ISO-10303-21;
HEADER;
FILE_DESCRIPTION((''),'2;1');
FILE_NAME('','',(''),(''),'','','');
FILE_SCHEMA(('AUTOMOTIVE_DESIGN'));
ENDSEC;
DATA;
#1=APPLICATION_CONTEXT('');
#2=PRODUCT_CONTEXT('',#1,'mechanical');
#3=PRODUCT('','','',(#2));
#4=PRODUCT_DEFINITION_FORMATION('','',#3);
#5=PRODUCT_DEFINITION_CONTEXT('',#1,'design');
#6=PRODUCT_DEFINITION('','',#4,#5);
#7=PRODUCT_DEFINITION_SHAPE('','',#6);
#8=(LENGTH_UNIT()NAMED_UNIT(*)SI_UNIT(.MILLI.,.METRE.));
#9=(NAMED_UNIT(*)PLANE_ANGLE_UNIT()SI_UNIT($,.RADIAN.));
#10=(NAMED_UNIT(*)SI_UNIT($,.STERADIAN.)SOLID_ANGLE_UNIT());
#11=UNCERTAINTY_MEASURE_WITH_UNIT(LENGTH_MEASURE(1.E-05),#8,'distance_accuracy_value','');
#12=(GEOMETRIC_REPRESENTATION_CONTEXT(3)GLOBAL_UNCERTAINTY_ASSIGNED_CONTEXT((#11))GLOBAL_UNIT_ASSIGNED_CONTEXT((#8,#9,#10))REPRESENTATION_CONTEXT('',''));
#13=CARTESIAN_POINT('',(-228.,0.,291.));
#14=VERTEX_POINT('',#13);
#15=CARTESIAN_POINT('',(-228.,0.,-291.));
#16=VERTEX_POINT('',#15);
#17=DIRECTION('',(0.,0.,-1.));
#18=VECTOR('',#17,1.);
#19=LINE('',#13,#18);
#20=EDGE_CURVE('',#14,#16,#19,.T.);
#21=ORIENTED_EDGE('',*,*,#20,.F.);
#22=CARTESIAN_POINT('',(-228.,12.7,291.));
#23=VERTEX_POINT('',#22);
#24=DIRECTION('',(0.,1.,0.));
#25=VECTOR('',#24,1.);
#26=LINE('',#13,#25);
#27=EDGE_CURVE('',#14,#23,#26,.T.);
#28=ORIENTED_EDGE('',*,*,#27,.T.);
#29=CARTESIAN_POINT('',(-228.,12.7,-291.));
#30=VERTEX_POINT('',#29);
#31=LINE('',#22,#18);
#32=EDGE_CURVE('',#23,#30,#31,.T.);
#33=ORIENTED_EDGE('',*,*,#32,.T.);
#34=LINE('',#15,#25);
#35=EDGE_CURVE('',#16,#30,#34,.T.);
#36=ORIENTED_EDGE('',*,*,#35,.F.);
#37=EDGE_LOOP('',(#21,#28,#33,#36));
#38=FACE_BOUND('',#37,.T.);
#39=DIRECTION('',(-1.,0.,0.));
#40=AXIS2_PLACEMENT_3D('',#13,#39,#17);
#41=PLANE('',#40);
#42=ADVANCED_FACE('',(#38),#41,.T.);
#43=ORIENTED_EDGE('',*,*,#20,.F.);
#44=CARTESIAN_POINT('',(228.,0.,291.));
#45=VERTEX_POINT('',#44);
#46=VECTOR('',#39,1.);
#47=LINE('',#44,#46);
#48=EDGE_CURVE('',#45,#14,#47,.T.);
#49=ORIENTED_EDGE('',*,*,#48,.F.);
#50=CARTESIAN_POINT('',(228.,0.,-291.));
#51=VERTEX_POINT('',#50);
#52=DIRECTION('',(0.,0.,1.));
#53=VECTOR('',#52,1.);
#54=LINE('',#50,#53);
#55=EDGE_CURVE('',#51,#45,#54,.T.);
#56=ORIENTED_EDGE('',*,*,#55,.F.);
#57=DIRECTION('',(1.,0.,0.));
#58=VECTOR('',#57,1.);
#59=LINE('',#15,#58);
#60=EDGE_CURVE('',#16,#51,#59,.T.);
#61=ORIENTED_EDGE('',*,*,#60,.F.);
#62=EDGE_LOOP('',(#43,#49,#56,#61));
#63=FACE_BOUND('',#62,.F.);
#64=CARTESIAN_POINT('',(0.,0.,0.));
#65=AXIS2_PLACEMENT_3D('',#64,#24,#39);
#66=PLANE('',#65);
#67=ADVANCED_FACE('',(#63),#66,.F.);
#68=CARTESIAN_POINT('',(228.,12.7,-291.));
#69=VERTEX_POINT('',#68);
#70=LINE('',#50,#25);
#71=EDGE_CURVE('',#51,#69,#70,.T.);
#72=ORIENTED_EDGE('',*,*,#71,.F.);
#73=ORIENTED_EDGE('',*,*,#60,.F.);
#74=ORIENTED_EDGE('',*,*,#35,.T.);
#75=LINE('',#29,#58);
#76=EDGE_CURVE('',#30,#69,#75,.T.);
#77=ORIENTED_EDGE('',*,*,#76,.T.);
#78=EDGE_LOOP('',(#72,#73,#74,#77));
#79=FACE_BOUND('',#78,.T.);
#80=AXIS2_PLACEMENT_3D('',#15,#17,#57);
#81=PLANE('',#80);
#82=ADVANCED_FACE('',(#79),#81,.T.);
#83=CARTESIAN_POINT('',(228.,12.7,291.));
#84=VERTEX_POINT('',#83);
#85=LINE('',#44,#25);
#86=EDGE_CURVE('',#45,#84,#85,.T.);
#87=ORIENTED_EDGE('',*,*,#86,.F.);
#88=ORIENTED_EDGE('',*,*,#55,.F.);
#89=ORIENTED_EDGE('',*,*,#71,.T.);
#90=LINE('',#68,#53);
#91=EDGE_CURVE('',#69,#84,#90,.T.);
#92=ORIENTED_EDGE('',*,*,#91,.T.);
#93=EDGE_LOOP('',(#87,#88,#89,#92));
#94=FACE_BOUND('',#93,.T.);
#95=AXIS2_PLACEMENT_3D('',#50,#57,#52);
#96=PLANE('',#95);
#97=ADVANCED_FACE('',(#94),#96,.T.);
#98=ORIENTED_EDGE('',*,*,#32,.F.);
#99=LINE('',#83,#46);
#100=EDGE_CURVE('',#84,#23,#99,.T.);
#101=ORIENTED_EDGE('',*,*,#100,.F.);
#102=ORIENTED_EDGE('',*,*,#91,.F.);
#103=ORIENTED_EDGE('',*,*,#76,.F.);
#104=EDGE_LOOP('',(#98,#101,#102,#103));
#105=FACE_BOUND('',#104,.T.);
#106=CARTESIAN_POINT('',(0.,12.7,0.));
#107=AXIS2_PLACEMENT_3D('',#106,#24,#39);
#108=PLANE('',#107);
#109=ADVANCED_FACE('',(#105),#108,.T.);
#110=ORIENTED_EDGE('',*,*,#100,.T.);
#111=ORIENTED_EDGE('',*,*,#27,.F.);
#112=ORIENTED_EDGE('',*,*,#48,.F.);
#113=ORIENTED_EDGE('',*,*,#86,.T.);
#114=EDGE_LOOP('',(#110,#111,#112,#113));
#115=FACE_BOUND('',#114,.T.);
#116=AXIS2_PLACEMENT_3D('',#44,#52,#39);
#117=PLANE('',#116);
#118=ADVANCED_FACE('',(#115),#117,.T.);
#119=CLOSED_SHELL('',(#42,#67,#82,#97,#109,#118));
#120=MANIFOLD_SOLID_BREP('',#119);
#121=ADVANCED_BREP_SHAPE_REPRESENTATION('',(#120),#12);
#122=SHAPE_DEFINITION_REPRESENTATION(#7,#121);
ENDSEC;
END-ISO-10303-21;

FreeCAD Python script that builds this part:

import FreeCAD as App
import Part
import Sketcher

V = App.Vector
Q = App.Units.Quantity


def add_polygon(sketch, points):
    """Adds a closed chain of lines whose ends are joined by coincident constraints."""
    first, n = sketch.GeometryCount, len(points)
    for a, b in zip(points, points[1:] + points[:1]):
        sketch.addGeometry(Part.LineSegment(App.Vector(*a, 0), App.Vector(*b, 0)), False)
    for i in range(n):
        sketch.addConstraint(Sketcher.Constraint("Coincident", first + i, 2, first + (i + 1) % n, 1))

doc = App.newDocument("Part")
body = doc.addObject("PartDesign::Body", "Body")

sketch1 = body.newObject("Sketcher::SketchObject", "Sketch")
sketch1.AttachmentSupport = (doc.getObject("XZ_Plane"), [""])
sketch1.MapMode = "FlatFace"
add_polygon(sketch1, [(-228, 291), (228, 291), (228, -291), (-228, -291)])
sketch1.addConstraint([
    Sketcher.Constraint("Horizontal", 0),
    Sketcher.Constraint("Vertical", 1),
    Sketcher.Constraint("Horizontal", 2),
    Sketcher.Constraint("Vertical", 3),
    Sketcher.Constraint("Symmetric", 0, 2, 2, 2, -1, 1),
    Sketcher.Constraint("DistanceX", 0, 1, 0, 2, Q("456 mm")),
    Sketcher.Constraint("DistanceY", 1, 2, 1, 1, Q("582 mm")),
])
pad1 = body.newObject("PartDesign::Pad", "Pad")
pad1.Profile = sketch1
pad1.Length = 12.7
pad1.Reversed = True

doc.recompute()
